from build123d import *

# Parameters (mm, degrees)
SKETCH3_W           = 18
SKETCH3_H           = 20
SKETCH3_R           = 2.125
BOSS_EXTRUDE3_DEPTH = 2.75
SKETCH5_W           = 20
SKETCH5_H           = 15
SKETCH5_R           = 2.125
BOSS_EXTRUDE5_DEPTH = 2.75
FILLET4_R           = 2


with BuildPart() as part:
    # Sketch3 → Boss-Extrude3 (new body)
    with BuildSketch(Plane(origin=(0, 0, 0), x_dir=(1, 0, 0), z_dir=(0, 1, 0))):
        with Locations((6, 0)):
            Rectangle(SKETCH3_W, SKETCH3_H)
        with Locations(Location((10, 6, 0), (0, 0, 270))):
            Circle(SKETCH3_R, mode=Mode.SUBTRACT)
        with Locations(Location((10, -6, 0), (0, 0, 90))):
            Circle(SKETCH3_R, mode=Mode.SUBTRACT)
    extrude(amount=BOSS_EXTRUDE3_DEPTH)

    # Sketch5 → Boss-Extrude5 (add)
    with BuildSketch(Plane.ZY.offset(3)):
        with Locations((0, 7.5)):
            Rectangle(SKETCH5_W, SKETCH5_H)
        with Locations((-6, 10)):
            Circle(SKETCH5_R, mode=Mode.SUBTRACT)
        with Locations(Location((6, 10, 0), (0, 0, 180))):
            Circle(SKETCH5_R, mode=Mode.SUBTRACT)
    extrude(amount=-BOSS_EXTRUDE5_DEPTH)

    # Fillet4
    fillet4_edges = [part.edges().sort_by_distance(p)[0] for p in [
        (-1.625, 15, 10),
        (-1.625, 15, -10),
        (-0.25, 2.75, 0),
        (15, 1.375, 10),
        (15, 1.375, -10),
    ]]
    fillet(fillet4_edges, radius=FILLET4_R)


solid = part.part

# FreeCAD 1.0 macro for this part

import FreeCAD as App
import Part
import Sketcher

V = App.Vector


def edges_at(feature, points):
    """Names of the edges that pass closest to the given points."""
    edges = feature.Shape.Edges
    near = lambda p: min(range(len(edges)), key=lambda i: edges[i].distToShape(Part.Vertex(*p))[0])
    return sorted({f"Edge{near(p) + 1}" for p in points})

doc = App.newDocument("Part")
body = doc.addObject("PartDesign::Body", "Body")

sketch1 = doc.addObject("Sketcher::SketchObject", "Sketch")
body.addObject(sketch1)
sketch1.AttachmentSupport = (doc.XZ_Plane, [""])
sketch1.MapMode = "FlatFace"
sketch1.addGeometry([
    Part.LineSegment(V(-3, -10, 0), V(-3, 10, 0)),
    Part.LineSegment(V(-3, 10, 0), V(15, 10, 0)),
    Part.LineSegment(V(15, 10, 0), V(15, -10, 0)),
    Part.LineSegment(V(15, -10, 0), V(-3, -10, 0)),
    Part.Circle(V(10, 6, 0), V(0, 0, 1), 2.1),
    Part.Circle(V(10, -6, 0), V(0, 0, 1), 2.1),
], False)
sketch1.addConstraint([
    Sketcher.Constraint("Coincident", 0, 2, 1, 1),
    Sketcher.Constraint("Coincident", 1, 2, 2, 1),
    Sketcher.Constraint("Coincident", 2, 2, 3, 1),
    Sketcher.Constraint("Coincident", 3, 2, 0, 1),
    Sketcher.Constraint("Vertical", 0),
    Sketcher.Constraint("Horizontal", 1),
    Sketcher.Constraint("Vertical", 2),
    Sketcher.Constraint("Horizontal", 3),
    Sketcher.Constraint("Equal", 4, 5),
    Sketcher.Constraint("Symmetric", 4, 3, 5, 3, -1),
    Sketcher.Constraint("Diameter", 4, 4.25),
    Sketcher.Constraint("DistanceX", 1, 1, 1, 2, 18.0),
    Sketcher.Constraint("DistanceY", 0, 1, 0, 2, 20.0),
    Sketcher.Constraint("DistanceX", -1, 1, 4, 3, 10.0),
    Sketcher.Constraint("DistanceY", -1, 1, 4, 3, 6.0),
    Sketcher.Constraint("DistanceX", 0, 2, -1, 1, 3.0),
    Sketcher.Constraint("DistanceY", -1, 1, 0, 2, 10.0),
])
pad1 = doc.addObject("PartDesign::Pad", "Pad")
body.addObject(pad1)
pad1.Profile = sketch1
pad1.Length = 2.75
pad1.Reversed = True

sketch2 = doc.addObject("Sketcher::SketchObject", "Sketch001")
body.addObject(sketch2)
sketch2.AttachmentSupport = (doc.YZ_Plane, [""])
sketch2.MapMode = "FlatFace"
sketch2.AttachmentOffset = App.Placement(V(0, 0, -3), App.Rotation())
sketch2.addGeometry([
    Part.LineSegment(V(15, -10, 0), V(0, -10, 0)),
    Part.LineSegment(V(0, -10, 0), V(0, 10, 0)),
    Part.LineSegment(V(0, 10, 0), V(15, 10, 0)),
    Part.LineSegment(V(15, 10, 0), V(15, -10, 0)),
    Part.Circle(V(10, -6, 0), V(0, 0, 1), 2.1),
    Part.Circle(V(10, 6, 0), V(0, 0, 1), 2.1),
], False)
sketch2.addConstraint([
    Sketcher.Constraint("Coincident", 0, 2, 1, 1),
    Sketcher.Constraint("Coincident", 1, 2, 2, 1),
    Sketcher.Constraint("Coincident", 2, 2, 3, 1),
    Sketcher.Constraint("Coincident", 3, 2, 0, 1),
    Sketcher.Constraint("Horizontal", 0),
    Sketcher.Constraint("Vertical", 1),
    Sketcher.Constraint("Horizontal", 2),
    Sketcher.Constraint("Vertical", 3),
    Sketcher.Constraint("Equal", 4, 5),
    Sketcher.Constraint("Symmetric", 0, 2, 1, 2, -1, 1),
    Sketcher.Constraint("Symmetric", 4, 3, 5, 3, -1),
    Sketcher.Constraint("Diameter", 4, 4.25),
    Sketcher.Constraint("DistanceX", 0, 2, 0, 1, 15.0),
    Sketcher.Constraint("DistanceY", 1, 1, 1, 2, 20.0),
    Sketcher.Constraint("DistanceX", -1, 1, 4, 3, 10.0),
    Sketcher.Constraint("DistanceY", 4, 3, -1, 1, 6.0),
])
pad2 = doc.addObject("PartDesign::Pad", "Pad001")
body.addObject(pad2)
pad2.Profile = sketch2
pad2.Length = 2.75
doc.recompute()

fillet = doc.addObject("PartDesign::Fillet", "Fillet")
body.addObject(fillet)
fillet.Base = (pad2, edges_at(pad2, [
    (-1.625, 15, 10),
    (-1.625, 15, -10),
    (-0.25, 2.75, 0),
    (15, 1.375, 10),
    (15, 1.375, -10),
]))
fillet.Radius = 2

doc.recompute()
